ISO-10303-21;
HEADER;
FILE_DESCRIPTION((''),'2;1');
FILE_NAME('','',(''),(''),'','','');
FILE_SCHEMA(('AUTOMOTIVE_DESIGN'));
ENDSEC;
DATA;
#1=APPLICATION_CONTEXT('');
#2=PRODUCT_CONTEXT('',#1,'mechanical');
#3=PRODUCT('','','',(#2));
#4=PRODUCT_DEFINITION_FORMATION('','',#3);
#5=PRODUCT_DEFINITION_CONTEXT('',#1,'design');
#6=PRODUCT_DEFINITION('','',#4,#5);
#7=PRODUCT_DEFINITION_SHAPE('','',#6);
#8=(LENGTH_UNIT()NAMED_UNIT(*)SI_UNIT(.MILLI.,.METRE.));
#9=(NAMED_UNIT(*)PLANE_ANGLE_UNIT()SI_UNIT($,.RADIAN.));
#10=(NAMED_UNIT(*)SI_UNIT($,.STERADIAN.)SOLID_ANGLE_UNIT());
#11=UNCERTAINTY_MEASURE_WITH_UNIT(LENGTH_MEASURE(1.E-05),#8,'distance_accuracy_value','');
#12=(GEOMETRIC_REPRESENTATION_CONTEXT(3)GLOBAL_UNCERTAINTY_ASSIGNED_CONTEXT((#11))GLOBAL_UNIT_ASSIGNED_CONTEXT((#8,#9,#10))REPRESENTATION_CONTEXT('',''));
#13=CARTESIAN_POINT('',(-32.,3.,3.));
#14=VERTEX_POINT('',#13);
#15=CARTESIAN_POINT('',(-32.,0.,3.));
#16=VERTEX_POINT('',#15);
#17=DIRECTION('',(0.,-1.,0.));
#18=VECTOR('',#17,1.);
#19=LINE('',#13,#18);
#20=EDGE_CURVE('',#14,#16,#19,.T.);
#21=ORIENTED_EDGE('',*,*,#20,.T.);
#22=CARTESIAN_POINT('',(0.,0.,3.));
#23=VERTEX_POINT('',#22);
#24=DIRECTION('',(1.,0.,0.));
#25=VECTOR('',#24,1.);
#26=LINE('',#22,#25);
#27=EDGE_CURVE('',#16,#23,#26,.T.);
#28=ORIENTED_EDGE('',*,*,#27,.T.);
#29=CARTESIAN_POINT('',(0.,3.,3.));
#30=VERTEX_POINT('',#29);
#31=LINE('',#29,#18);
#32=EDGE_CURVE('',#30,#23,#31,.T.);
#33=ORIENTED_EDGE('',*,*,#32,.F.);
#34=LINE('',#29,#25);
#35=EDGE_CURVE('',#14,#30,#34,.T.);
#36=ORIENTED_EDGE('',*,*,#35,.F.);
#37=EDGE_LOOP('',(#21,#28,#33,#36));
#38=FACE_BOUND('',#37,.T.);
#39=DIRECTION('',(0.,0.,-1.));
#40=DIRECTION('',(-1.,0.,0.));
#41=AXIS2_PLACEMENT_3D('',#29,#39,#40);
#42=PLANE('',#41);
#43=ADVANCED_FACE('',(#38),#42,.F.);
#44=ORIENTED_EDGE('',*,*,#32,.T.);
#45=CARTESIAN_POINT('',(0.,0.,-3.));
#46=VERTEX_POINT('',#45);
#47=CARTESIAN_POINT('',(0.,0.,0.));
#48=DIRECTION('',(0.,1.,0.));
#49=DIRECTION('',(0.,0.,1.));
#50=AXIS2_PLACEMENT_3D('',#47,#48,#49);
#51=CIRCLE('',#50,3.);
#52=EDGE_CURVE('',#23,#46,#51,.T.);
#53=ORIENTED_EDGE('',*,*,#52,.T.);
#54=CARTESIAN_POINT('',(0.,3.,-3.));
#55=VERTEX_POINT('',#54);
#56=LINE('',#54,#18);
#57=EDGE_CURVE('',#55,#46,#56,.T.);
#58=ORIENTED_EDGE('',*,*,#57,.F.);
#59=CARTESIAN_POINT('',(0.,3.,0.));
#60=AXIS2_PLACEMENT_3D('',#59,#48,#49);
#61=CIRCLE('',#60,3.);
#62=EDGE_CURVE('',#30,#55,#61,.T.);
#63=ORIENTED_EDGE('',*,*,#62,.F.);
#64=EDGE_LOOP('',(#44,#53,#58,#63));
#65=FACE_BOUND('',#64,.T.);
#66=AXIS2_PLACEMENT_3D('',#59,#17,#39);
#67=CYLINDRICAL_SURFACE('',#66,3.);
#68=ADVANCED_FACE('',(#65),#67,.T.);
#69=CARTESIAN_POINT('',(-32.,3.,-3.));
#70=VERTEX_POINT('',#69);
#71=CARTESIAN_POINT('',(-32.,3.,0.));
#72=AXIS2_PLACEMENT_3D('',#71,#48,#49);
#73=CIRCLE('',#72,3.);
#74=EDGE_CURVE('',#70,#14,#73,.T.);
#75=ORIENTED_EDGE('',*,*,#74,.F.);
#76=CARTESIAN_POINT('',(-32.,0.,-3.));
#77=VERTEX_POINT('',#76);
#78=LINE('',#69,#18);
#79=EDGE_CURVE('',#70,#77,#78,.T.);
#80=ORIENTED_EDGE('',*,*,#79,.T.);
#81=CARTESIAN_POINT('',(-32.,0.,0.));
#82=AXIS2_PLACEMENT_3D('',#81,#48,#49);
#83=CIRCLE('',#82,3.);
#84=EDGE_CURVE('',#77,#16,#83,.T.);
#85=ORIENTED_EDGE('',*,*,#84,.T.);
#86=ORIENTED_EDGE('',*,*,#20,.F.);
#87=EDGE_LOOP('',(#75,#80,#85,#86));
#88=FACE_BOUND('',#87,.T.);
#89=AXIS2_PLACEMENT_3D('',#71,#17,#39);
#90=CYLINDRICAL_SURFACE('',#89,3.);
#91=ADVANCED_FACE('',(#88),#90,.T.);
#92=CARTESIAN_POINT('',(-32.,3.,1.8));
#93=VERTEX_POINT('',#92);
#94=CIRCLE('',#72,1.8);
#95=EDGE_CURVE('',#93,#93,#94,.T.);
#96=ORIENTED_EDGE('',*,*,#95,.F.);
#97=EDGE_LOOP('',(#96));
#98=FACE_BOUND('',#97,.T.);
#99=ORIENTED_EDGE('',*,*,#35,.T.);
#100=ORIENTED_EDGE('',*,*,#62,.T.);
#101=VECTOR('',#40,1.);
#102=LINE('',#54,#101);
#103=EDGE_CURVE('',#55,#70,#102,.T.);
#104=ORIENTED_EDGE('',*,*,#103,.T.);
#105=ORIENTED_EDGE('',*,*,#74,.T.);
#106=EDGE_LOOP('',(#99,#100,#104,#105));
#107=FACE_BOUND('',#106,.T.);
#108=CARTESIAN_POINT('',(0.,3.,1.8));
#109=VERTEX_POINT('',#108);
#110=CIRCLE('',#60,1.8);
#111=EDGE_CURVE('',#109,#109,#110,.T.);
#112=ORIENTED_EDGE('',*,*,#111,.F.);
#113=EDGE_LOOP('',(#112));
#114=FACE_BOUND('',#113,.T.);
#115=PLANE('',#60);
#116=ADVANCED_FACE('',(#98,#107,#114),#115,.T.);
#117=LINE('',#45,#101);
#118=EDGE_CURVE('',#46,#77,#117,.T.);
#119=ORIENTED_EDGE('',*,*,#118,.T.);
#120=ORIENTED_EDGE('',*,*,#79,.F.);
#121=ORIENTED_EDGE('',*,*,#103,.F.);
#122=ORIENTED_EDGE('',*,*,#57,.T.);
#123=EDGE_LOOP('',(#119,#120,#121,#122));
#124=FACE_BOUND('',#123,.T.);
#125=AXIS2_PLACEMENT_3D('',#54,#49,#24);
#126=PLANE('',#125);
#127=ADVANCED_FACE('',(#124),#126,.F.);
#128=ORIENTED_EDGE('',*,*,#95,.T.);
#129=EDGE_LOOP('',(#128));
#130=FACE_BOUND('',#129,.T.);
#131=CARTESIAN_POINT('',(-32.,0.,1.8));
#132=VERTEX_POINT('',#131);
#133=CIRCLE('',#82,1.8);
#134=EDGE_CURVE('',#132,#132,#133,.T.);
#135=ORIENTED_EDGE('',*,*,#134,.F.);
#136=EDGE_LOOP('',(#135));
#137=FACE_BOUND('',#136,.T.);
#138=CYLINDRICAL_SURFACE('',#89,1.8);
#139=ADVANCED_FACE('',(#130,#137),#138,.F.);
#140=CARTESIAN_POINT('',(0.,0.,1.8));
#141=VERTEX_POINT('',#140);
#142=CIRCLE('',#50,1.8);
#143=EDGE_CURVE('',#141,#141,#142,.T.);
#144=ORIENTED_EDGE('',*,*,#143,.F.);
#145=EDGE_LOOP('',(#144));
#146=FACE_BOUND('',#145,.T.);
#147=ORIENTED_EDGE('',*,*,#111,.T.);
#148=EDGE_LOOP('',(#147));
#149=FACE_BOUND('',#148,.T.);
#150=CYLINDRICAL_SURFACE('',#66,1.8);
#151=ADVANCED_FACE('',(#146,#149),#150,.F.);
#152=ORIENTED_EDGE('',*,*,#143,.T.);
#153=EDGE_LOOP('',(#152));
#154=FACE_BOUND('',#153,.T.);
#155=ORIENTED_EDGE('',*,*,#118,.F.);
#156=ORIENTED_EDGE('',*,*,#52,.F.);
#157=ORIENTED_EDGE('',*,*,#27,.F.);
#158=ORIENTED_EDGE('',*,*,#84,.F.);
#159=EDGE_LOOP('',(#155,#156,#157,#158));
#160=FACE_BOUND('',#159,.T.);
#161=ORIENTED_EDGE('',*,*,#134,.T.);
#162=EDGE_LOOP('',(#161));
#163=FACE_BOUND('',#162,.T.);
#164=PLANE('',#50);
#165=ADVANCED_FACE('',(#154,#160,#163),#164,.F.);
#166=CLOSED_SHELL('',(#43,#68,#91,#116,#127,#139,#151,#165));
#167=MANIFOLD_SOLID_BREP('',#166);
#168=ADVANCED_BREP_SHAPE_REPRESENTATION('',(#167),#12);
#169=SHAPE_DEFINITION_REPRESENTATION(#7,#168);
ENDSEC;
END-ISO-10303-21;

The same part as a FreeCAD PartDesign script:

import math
import FreeCAD as App
import Part
import Sketcher
from FreeCAD import Vector
Q = App.Units.Quantity

doc = App.newDocument("Part")
body = doc.addObject("PartDesign::Body", "Body")

sketch1 = body.newObject("Sketcher::SketchObject", "Sketch")
sketch1.AttachmentSupport = (doc.getObject("XZ_Plane"), [""])
sketch1.MapMode = "FlatFace"
sketch1.addGeometry([
    Part.LineSegment(Vector(-32, 3, 0), Vector(0, 3, 0)),
    Part.ArcOfCircle(Part.Circle(Vector(0, 0, 0), Vector(0, 0, 1), 3), math.radians(-90), math.radians(90)),
    Part.LineSegment(Vector(0, -3, 0), Vector(-32, -3, 0)),
    Part.ArcOfCircle(Part.Circle(Vector(-32, 0, 0), Vector(0, 0, 1), 3), math.radians(90), math.radians(270)),
    Part.Circle(Vector(0, 0, 0), Vector(0, 0, 1), 1.8),
    Part.Circle(Vector(-32, 0, 0), Vector(0, 0, 1), 1.8),
], False)
sketch1.addConstraint([
    Sketcher.Constraint("Tangent", 0, 2, 1, 2),
    Sketcher.Constraint("Tangent", 1, 1, 2, 1),
    Sketcher.Constraint("Tangent", 2, 2, 3, 2),
    Sketcher.Constraint("Tangent", 3, 1, 0, 1),
    Sketcher.Constraint("Horizontal", 0),
    Sketcher.Constraint("Horizontal", 2),
    Sketcher.Constraint("Coincident", 1, 3, -1, 1),
    Sketcher.Constraint("Coincident", 4, 3, -1, 1),
    Sketcher.Constraint("Coincident", 5, 3, 3, 3),
    Sketcher.Constraint("Equal", 4, 5),
    Sketcher.Constraint("Radius", 1, Q("3 mm")),
    Sketcher.Constraint("Diameter", 4, Q("3.6 mm")),
    Sketcher.Constraint("DistanceX", 0, 1, 0, 2, Q("32 mm")),
])
pad1 = body.newObject("PartDesign::Pad", "Pad")
pad1.Profile = sketch1
pad1.Length = 3
pad1.Reversed = True

doc.recompute()
